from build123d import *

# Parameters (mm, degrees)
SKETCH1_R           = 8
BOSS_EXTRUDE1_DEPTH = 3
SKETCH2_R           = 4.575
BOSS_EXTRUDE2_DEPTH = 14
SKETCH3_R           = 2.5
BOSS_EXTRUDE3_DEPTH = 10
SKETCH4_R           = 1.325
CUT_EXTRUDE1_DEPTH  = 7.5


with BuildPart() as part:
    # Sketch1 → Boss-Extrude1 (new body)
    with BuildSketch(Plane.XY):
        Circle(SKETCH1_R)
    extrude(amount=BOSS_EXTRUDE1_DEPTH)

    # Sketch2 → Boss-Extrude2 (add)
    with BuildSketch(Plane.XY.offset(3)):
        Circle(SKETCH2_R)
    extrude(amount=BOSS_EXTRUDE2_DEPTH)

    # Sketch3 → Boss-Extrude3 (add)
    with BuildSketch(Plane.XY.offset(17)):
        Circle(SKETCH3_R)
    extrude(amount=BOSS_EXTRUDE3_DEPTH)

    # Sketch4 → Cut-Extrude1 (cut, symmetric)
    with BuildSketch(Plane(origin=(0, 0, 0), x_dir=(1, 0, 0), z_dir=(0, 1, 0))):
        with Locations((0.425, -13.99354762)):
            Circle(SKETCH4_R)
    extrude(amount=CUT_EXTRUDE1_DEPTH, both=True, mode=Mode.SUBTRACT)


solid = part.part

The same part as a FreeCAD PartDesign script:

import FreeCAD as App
import Part
import Sketcher

V = App.Vector
Q = App.Units.Quantity

doc = App.newDocument("Part")
body = doc.addObject("PartDesign::Body", "Body")

# Sketch on XY plane
sketch1 = doc.addObject("Sketcher::SketchObject", "Sketch")
body.addObject(sketch1)
sketch1.AttachmentSupport = (doc.XY_Plane, [""])
sketch1.MapMode = "FlatFace"
sketch1.addGeometry(Part.Circle(V(0, 0, 0), V(0, 0, 1), 8), False)
sketch1.addConstraint([
    Sketcher.Constraint("Coincident", 0, 3, -1, 1),
    Sketcher.Constraint("Diameter", 0, Q("16 mm")),
])
pad1 = doc.addObject("PartDesign::Pad", "Pad")
body.addObject(pad1)
pad1.Profile = sketch1
pad1.Length = 3

# Sketch on XY plane
sketch2 = doc.addObject("Sketcher::SketchObject", "Sketch001")
body.addObject(sketch2)
sketch2.AttachmentSupport = (doc.XY_Plane, [""])
sketch2.MapMode = "FlatFace"
sketch2.AttachmentOffset = App.Placement(V(0, 0, 3), App.Rotation())
sketch2.addGeometry(Part.Circle(V(0, 0, 0), V(0, 0, 1), 4.6), False)
sketch2.addConstraint([
    Sketcher.Constraint("Coincident", 0, 3, -1, 1),
    Sketcher.Constraint("Diameter", 0, Q("9.15 mm")),
])
pad2 = doc.addObject("PartDesign::Pad", "Pad001")
body.addObject(pad2)
pad2.Profile = sketch2
pad2.Length = 14

# Sketch on XY plane
sketch3 = doc.addObject("Sketcher::SketchObject", "Sketch002")
body.addObject(sketch3)
sketch3.AttachmentSupport = (doc.XY_Plane, [""])
sketch3.MapMode = "FlatFace"
sketch3.AttachmentOffset = App.Placement(V(0, 0, 17), App.Rotation())
sketch3.addGeometry(Part.Circle(V(0, 0, 0), V(0, 0, 1), 2.5), False)
sketch3.addConstraint([
    Sketcher.Constraint("Coincident", 0, 3, -1, 1),
    Sketcher.Constraint("Diameter", 0, Q("5 mm")),
])
pad3 = doc.addObject("PartDesign::Pad", "Pad002")
body.addObject(pad3)
pad3.Profile = sketch3
pad3.Length = 10

# Sketch on XZ plane
sketch4 = doc.addObject("Sketcher::SketchObject", "Sketch003")
body.addObject(sketch4)
sketch4.AttachmentSupport = (doc.XZ_Plane, [""])
sketch4.MapMode = "FlatFace"
sketch4.addGeometry(Part.Circle(V(0.4, 14, 0), V(0, 0, 1), 1.3), False)
sketch4.addConstraint([
    Sketcher.Constraint("Diameter", 0, Q("2.65 mm")),
    Sketcher.Constraint("DistanceX", -1, 1, 0, 3, Q("0.425 mm")),
    Sketcher.Constraint("DistanceY", -1, 1, 0, 3, Q("13.993548 mm")),
])
pocket1 = doc.addObject("PartDesign::Pocket", "Pocket")
body.addObject(pocket1)
pocket1.Profile = sketch4
pocket1.Length = 15
pocket1.Midplane = True

doc.recompute()
